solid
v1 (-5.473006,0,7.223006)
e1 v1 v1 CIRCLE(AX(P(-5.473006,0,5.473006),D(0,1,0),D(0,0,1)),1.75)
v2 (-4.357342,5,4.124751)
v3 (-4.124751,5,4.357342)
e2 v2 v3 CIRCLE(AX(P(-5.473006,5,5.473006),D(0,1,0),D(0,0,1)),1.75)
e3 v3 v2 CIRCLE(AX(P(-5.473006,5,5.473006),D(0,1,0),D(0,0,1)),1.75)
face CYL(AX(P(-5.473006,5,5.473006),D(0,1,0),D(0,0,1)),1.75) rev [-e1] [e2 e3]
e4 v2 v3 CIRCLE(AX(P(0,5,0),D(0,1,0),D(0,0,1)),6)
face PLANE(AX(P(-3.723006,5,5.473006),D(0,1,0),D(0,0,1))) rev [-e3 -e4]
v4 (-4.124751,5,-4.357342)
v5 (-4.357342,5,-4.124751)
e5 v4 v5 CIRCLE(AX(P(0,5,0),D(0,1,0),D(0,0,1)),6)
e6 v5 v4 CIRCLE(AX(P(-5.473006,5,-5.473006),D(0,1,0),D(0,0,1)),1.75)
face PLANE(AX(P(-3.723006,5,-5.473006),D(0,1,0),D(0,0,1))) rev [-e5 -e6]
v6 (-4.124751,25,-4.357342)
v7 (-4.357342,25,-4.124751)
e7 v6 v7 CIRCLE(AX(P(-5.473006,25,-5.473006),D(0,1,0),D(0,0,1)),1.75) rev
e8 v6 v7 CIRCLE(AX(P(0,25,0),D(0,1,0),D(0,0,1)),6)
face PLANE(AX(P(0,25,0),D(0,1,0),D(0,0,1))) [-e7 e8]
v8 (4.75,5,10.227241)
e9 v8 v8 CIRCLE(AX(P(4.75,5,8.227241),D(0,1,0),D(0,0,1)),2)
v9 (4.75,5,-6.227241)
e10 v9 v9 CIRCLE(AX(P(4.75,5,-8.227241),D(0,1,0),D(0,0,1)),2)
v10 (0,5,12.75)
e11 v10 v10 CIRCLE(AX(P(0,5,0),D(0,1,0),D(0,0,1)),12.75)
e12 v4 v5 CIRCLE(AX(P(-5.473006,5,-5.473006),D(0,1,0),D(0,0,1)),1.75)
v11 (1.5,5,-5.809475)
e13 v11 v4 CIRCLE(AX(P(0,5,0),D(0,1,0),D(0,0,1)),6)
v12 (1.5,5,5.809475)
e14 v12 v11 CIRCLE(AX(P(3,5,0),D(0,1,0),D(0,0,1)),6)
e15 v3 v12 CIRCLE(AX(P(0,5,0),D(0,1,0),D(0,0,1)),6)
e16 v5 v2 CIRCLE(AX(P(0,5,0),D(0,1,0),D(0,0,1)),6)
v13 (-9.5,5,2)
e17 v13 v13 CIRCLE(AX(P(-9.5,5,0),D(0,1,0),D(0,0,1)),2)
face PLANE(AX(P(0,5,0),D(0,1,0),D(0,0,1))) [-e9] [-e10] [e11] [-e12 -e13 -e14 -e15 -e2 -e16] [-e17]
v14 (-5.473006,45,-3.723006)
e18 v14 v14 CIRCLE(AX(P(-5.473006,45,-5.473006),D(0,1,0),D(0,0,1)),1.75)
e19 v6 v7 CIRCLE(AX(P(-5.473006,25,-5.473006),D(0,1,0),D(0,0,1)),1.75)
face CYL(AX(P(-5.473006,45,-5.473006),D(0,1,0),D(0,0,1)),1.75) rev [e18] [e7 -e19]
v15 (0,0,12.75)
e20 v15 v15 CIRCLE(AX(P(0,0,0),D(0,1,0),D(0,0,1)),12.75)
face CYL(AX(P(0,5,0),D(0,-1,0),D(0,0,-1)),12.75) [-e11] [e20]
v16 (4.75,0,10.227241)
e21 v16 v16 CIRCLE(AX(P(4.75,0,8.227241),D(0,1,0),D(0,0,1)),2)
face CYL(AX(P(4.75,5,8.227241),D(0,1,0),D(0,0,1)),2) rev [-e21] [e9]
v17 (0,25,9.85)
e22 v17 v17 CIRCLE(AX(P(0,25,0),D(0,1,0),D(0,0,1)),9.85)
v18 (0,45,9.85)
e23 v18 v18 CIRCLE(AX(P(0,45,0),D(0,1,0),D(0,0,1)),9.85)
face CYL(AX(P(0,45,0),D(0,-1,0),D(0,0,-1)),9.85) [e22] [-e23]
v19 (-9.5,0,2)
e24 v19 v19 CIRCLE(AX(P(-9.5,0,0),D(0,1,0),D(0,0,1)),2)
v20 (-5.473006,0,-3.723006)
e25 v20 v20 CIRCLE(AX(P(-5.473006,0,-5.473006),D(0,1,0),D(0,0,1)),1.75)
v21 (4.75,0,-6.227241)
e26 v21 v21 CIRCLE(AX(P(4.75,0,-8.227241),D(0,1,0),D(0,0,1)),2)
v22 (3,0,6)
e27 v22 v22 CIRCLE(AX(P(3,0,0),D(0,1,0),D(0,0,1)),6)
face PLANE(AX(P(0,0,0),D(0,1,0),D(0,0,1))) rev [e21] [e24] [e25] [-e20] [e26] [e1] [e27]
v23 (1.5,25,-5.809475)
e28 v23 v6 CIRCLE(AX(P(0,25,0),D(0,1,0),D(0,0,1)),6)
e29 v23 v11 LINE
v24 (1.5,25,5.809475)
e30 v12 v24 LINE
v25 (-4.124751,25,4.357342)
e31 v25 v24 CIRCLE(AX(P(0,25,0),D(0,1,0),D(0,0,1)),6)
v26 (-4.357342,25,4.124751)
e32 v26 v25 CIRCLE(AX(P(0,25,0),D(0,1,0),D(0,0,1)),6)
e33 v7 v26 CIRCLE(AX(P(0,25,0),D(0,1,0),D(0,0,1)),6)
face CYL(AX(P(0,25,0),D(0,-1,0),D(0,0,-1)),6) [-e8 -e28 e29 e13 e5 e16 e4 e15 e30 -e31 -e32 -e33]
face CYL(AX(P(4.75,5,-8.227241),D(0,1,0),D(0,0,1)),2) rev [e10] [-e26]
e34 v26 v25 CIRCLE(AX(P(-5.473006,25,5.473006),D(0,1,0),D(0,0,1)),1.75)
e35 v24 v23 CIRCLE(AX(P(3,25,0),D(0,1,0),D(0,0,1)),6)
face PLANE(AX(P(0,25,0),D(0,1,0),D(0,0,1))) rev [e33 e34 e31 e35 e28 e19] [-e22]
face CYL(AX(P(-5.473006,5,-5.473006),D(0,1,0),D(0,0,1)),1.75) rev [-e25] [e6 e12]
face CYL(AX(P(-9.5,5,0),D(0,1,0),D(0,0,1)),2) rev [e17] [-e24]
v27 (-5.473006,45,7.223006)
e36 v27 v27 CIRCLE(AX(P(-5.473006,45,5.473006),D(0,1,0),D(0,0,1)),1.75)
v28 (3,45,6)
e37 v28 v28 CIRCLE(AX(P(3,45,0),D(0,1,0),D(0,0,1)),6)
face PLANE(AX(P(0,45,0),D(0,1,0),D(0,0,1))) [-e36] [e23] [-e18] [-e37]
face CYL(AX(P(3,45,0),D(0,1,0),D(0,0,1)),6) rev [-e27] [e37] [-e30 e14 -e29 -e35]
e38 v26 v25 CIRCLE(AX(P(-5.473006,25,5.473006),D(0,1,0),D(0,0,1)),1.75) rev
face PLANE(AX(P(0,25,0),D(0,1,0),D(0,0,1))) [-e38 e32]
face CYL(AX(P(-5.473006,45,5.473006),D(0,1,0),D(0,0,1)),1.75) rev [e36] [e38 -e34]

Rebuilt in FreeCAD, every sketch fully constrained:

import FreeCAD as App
import Part
import Sketcher
from FreeCAD import Vector


def add_polygon(sketch, points):
    """Adds a closed chain of lines whose ends are joined by coincident constraints."""
    first, n = sketch.GeometryCount, len(points)
    for a, b in zip(points, points[1:] + points[:1]):
        sketch.addGeometry(Part.LineSegment(App.Vector(*a, 0), App.Vector(*b, 0)), False)
    for i in range(n):
        sketch.addConstraint(Sketcher.Constraint("Coincident", first + i, 2, first + (i + 1) % n, 1))

doc = App.newDocument("Part")
body = doc.addObject("PartDesign::Body", "Body")

sketch1 = body.newObject("Sketcher::SketchObject", "Sketch")
sketch1.AttachmentSupport = (doc.getObject("XZ_Plane"), [""])
sketch1.MapMode = "FlatFace"
sketch1.addGeometry(Part.Circle(Vector(0, 0, 0), Vector(0, 0, 1), 12.75), False)
sketch1.addConstraint(Sketcher.Constraint("Coincident", 0, 3, -1, 1))
sketch1.addConstraint(Sketcher.Constraint("Diameter", 0, 25.5))
pad1 = body.newObject("PartDesign::Pad", "Pad")
pad1.Profile = sketch1
pad1.Length = 5
pad1.Reversed = True

sketch2 = body.newObject("Sketcher::SketchObject", "Sketch001")
sketch2.AttachmentSupport = (doc.getObject("XZ_Plane"), [""])
sketch2.MapMode = "FlatFace"
sketch2.AttachmentOffset = App.Placement(Vector(0, 0, -5), App.Rotation())
sketch2.addGeometry(Part.Circle(Vector(-9.5, 0, 0), Vector(0, 0, 1), 2), False)
sketch2.addGeometry(Part.Circle(Vector(4.75, 8.227241, 0), Vector(0, 0, 1), 2), False)
sketch2.addGeometry(Part.Circle(Vector(4.75, -8.227241, 0), Vector(0, 0, 1), 2), False)
sketch2.addConstraint(Sketcher.Constraint("Equal", 0, 1))
sketch2.addConstraint(Sketcher.Constraint("Equal", 1, 2))
sketch2.addConstraint(Sketcher.Constraint("Symmetric", 1, 3, 2, 3, -1))
sketch2.addConstraint(Sketcher.Constraint("PointOnObject", 0, 3, -1))
sketch2.addConstraint(Sketcher.Constraint("Diameter", 0, 4.0))
sketch2.addConstraint(Sketcher.Constraint("DistanceX", 0, 3, -1, 1, 9.5))
sketch2.addConstraint(Sketcher.Constraint("DistanceX", -1, 1, 1, 3, 4.75))
sketch2.addConstraint(Sketcher.Constraint("DistanceY", -1, 1, 1, 3, 8.227241))
doc.recompute()
hole = body.newObject("PartDesign::Hole", "Hole")
hole.Profile = sketch2
hole.ThreadType = "None"
hole.Diameter = 4
hole.DepthType = "ThroughAll"
hole.Reversed = True

sketch3 = body.newObject("Sketcher::SketchObject", "Sketch002")
sketch3.AttachmentSupport = (doc.getObject("XZ_Plane"), [""])
sketch3.MapMode = "FlatFace"
sketch3.AttachmentOffset = App.Placement(Vector(0, 0, -5), App.Rotation())
sketch3.addGeometry(Part.Circle(Vector(0, 0, 0), Vector(0, 0, 1), 6), False)
sketch3.addConstraint(Sketcher.Constraint("Coincident", 0, 3, -1, 1))
sketch3.addConstraint(Sketcher.Constraint("Diameter", 0, 12.0))
pad2 = body.newObject("PartDesign::Pad", "Pad001")
pad2.Profile = sketch3
pad2.Length = 20
pad2.Reversed = True

sketch4 = body.newObject("Sketcher::SketchObject", "Sketch003")
sketch4.AttachmentSupport = (doc.getObject("XZ_Plane"), [""])
sketch4.MapMode = "FlatFace"
sketch4.AttachmentOffset = App.Placement(Vector(0, 0, -25), App.Rotation())
sketch4.addGeometry(Part.Circle(Vector(0, 0, 0), Vector(0, 0, 1), 9.85), False)
sketch4.addConstraint(Sketcher.Constraint("Coincident", 0, 3, -1, 1))
sketch4.addConstraint(Sketcher.Constraint("Diameter", 0, 19.7))
pad3 = body.newObject("PartDesign::Pad", "Pad002")
pad3.Profile = sketch4
pad3.Length = 20
pad3.Reversed = True

sketch5 = body.newObject("Sketcher::SketchObject", "Sketch004")
sketch5.AttachmentSupport = (doc.getObject("XZ_Plane"), [""])
sketch5.MapMode = "FlatFace"
sketch5.AttachmentOffset = App.Placement(Vector(0, 0, -45), App.Rotation())
sketch5.addGeometry(Part.Circle(Vector(3, 0, 0), Vector(0, 0, 1), 6), False)
sketch5.addConstraint(Sketcher.Constraint("PointOnObject", 0, 3, -1))
sketch5.addConstraint(Sketcher.Constraint("Diameter", 0, 12.0))
sketch5.addConstraint(Sketcher.Constraint("DistanceX", -1, 1, 0, 3, 3.0))
doc.recompute()
hole2 = body.newObject("PartDesign::Hole", "Hole001")
hole2.Profile = sketch5
hole2.ThreadType = "None"
hole2.Diameter = 12
hole2.DepthType = "ThroughAll"
hole2.Reversed = True

sketch6 = body.newObject("Sketcher::SketchObject", "Sketch005")
sketch6.AttachmentSupport = (doc.getObject("XZ_Plane"), [""])
sketch6.MapMode = "FlatFace"
sketch6.AttachmentOffset = App.Placement(Vector(0, 0, -45), App.Rotation())
sketch6.addGeometry(Part.Circle(Vector(-5.473006, -5.473006, 0), Vector(0, 0, 1), 1.75), False)
sketch6.addGeometry(Part.Circle(Vector(-5.473006, 5.473006, 0), Vector(0, 0, 1), 1.75), False)
sketch6.addConstraint(Sketcher.Constraint("Equal", 0, 1))
sketch6.addConstraint(Sketcher.Constraint("Symmetric", 0, 3, 1, 3, -1))
sketch6.addConstraint(Sketcher.Constraint("Diameter", 0, 3.5))
sketch6.addConstraint(Sketcher.Constraint("DistanceX", 0, 3, -1, 1, 5.473006))
sketch6.addConstraint(Sketcher.Constraint("DistanceY", 0, 3, -1, 1, 5.473006))
doc.recompute()
hole3 = body.newObject("PartDesign::Hole", "Hole002")
hole3.Profile = sketch6
hole3.ThreadType = "None"
hole3.Diameter = 3.5
hole3.DepthType = "Dimension"
hole3.Depth = 20
hole3.DrillPoint = "Flat"
hole3.Reversed = True

sketch7 = body.newObject("Sketcher::SketchObject", "Sketch006")
sketch7.AttachmentSupport = (doc.getObject("YZ_Plane"), [""])
sketch7.MapMode = "FlatFace"
sketch7.AttachmentOffset = App.Placement(Vector(0, 0, -5.473006), App.Rotation())
add_polygon(sketch7, [(0, 5.473006), (5, 5.473006), (5, 7.223006), (0, 7.223006)])
sketch7.addGeometry(Part.LineSegment(Vector(5, 5.473006, 0), Vector(0, 5.473006, 0)), True)
sketch7.addConstraint(Sketcher.Constraint("Horizontal", 0))
sketch7.addConstraint(Sketcher.Constraint("Vertical", 1))
sketch7.addConstraint(Sketcher.Constraint("Horizontal", 2))
sketch7.addConstraint(Sketcher.Constraint("Vertical", 3))
sketch7.addConstraint(Sketcher.Constraint("Horizontal", 4))
sketch7.addConstraint(Sketcher.Constraint("Coincident", 4, 1, 0, 2))
sketch7.addConstraint(Sketcher.Constraint("PointOnObject", 2, 2, -2))
sketch7.addConstraint(Sketcher.Constraint("PointOnObject", 4, 2, -2))
sketch7.addConstraint(Sketcher.Constraint("DistanceX", 0, 1, 0, 2, 5.0))
sketch7.addConstraint(Sketcher.Constraint("DistanceY", 1, 1, 1, 2, 1.75))
sketch7.addConstraint(Sketcher.Constraint("DistanceY", -1, 1, 0, 2, 5.473006))
groove = body.newObject("PartDesign::Groove", "Groove")
groove.Profile = sketch7
groove.ReferenceAxis = (sketch7, ["Axis0"])
groove.Angle = 360
doc.recompute()

linearpattern = body.newObject("PartDesign::LinearPattern", "LinearPattern")
linearpattern.Originals = [groove]
linearpattern.Direction = (doc.getObject("Z_Axis"), [""])
linearpattern.Mode = "offset"
linearpattern.Offset = 10.946013
linearpattern.Occurrences = 2
linearpattern.Reversed = True
body.Tip = linearpattern

doc.recompute()
